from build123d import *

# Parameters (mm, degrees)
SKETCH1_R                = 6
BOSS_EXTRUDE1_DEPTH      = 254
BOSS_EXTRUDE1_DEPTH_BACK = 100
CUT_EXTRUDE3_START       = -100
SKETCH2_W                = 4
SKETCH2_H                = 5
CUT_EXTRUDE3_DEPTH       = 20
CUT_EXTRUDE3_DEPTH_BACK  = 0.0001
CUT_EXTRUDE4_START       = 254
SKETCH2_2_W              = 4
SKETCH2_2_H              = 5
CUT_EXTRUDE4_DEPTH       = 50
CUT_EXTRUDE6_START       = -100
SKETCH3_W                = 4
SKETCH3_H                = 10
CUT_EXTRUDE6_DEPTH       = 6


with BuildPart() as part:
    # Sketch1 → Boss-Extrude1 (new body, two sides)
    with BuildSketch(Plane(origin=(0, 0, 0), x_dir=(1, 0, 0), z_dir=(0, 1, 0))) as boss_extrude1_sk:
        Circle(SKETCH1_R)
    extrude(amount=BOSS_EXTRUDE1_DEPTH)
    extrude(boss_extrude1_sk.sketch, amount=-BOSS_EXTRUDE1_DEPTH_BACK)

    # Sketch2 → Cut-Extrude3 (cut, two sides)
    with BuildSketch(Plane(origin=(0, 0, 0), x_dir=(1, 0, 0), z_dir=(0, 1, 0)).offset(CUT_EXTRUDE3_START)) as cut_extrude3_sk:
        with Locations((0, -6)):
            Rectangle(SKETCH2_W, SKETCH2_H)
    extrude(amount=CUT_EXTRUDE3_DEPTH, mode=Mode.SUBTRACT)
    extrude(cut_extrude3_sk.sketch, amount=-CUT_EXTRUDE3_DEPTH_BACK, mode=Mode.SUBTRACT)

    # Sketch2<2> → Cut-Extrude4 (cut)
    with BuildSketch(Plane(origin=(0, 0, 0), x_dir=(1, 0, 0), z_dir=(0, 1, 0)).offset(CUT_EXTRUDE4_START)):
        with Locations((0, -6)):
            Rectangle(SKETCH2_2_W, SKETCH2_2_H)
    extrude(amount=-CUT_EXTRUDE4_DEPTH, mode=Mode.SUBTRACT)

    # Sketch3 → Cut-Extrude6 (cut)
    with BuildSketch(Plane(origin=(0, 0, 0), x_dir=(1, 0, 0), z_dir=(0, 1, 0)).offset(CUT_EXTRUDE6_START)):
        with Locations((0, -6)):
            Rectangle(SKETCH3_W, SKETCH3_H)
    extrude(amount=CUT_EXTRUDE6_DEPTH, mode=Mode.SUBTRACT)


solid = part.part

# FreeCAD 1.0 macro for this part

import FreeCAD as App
import Part
import Sketcher

V = App.Vector


def add_polygon(sketch, points):
    """Adds a closed chain of lines whose ends are joined by coincident constraints."""
    first, n = sketch.GeometryCount, len(points)
    for a, b in zip(points, points[1:] + points[:1]):
        sketch.addGeometry(Part.LineSegment(App.Vector(*a, 0), App.Vector(*b, 0)), False)
    for i in range(n):
        sketch.addConstraint(Sketcher.Constraint("Coincident", first + i, 2, first + (i + 1) % n, 1))

doc = App.newDocument("Part")
params = doc.addObject("Spreadsheet::Sheet", "Params")
for row, (alias, value) in enumerate([
    ("sketch1_diameter", "12 mm"),
    ("pad1_length", "254 mm"),
    ("pad1_length2", "100 mm"),
    ("sketch2_width", "4 mm"),
    ("sketch2_height", "5 mm"),
    ("pocket1_length", "20 mm"),
    ("pocket1_length2", "0.0001 mm"),
    ("sketch3_width", "4 mm"),
    ("sketch3_height", "5 mm"),
    ("pocket2_length", "50 mm"),
    ("sketch4_width", "4 mm"),
    ("sketch4_height", "10 mm"),
    ("pocket3_length", "6 mm"),
], start=1):
    params.set(f"A{row}", alias)
    params.set(f"B{row}", "=" + value)
    params.setAlias(f"B{row}", alias)

body = doc.addObject("PartDesign::Body", "Body")

# Sketch on XZ plane
sketch1 = body.newObject("Sketcher::SketchObject", "Sketch")
sketch1.AttachmentSupport = (doc.getObject("XZ_Plane"), [""])
sketch1.MapMode = "FlatFace"
sketch1.addGeometry(Part.Circle(V(0, 0, 0), V(0, 0, 1), 6), False)
sketch1.addConstraint([
    Sketcher.Constraint("Coincident", 0, 3, -1, 1),
    Sketcher.Constraint("Diameter", 0, 12.0),
])
sketch1.setExpression("Constraints[1]", "Params.sketch1_diameter")
pad1 = body.newObject("PartDesign::Pad", "Pad")
pad1.Profile = sketch1
pad1.Type = "TwoLengths"
pad1.setExpression("Length", "Params.pad1_length")
pad1.setExpression("Length2", "Params.pad1_length2")
pad1.Reversed = True

# Sketch on XZ plane
sketch2 = body.newObject("Sketcher::SketchObject", "Sketch001")
sketch2.AttachmentSupport = (doc.getObject("XZ_Plane"), [""])
sketch2.MapMode = "FlatFace"
sketch2.AttachmentOffset = App.Placement(V(0, 0, 100), App.Rotation())
add_polygon(sketch2, [(-2, 3.5), (-2, 8.5), (2, 8.5), (2, 3.5)])  # lines 0-3
sketch2.addConstraint([
    Sketcher.Constraint("Vertical", 0),
    Sketcher.Constraint("Horizontal", 1),
    Sketcher.Constraint("Vertical", 2),
    Sketcher.Constraint("Horizontal", 3),
    Sketcher.Constraint("DistanceX", 1, 1, 1, 2, 4.0),
    Sketcher.Constraint("DistanceY", 0, 1, 0, 2, 5.0),
    Sketcher.Constraint("DistanceX", 0, 2, -1, 1, 2.0),
    Sketcher.Constraint("DistanceY", -1, 1, 0, 2, 8.5),
])
sketch2.setExpression("Constraints[8]", "Params.sketch2_width")
sketch2.setExpression("Constraints[9]", "Params.sketch2_height")
pocket1 = body.newObject("PartDesign::Pocket", "Pocket")
pocket1.Profile = sketch2
pocket1.Type = "TwoLengths"
pocket1.setExpression("Length", "Params.pocket1_length")
pocket1.setExpression("Length2", "Params.pocket1_length2")

# Sketch on XZ plane
sketch3 = body.newObject("Sketcher::SketchObject", "Sketch002")
sketch3.AttachmentSupport = (doc.getObject("XZ_Plane"), [""])
sketch3.MapMode = "FlatFace"
sketch3.AttachmentOffset = App.Placement(V(0, 0, -254), App.Rotation())
add_polygon(sketch3, [(-2, 3.5), (-2, 8.5), (2, 8.5), (2, 3.5)])  # lines 0-3
sketch3.addConstraint([
    Sketcher.Constraint("Vertical", 0),
    Sketcher.Constraint("Horizontal", 1),
    Sketcher.Constraint("Vertical", 2),
    Sketcher.Constraint("Horizontal", 3),
    Sketcher.Constraint("DistanceX", 1, 1, 1, 2, 4.0),
    Sketcher.Constraint("DistanceY", 0, 1, 0, 2, 5.0),
    Sketcher.Constraint("DistanceX", 0, 2, -1, 1, 2.0),
    Sketcher.Constraint("DistanceY", -1, 1, 0, 2, 8.5),
])
sketch3.setExpression("Constraints[8]", "Params.sketch3_width")
sketch3.setExpression("Constraints[9]", "Params.sketch3_height")
pocket2 = body.newObject("PartDesign::Pocket", "Pocket001")
pocket2.Profile = sketch3
pocket2.setExpression("Length", "Params.pocket2_length")
pocket2.Reversed = True

# Sketch on XZ plane
sketch4 = body.newObject("Sketcher::SketchObject", "Sketch003")
sketch4.AttachmentSupport = (doc.getObject("XZ_Plane"), [""])
sketch4.MapMode = "FlatFace"
sketch4.AttachmentOffset = App.Placement(V(0, 0, 100), App.Rotation())
add_polygon(sketch4, [(-2, 1), (-2, 11), (2, 11), (2, 1)])  # lines 0-3
sketch4.addConstraint([
    Sketcher.Constraint("Vertical", 0),
    Sketcher.Constraint("Horizontal", 1),
    Sketcher.Constraint("Vertical", 2),
    Sketcher.Constraint("Horizontal", 3),
    Sketcher.Constraint("DistanceX", 1, 1, 1, 2, 4.0),
    Sketcher.Constraint("DistanceY", 0, 1, 0, 2, 10.0),
    Sketcher.Constraint("DistanceX", 0, 2, -1, 1, 2.0),
    Sketcher.Constraint("DistanceY", -1, 1, 0, 2, 11.0),
])
sketch4.setExpression("Constraints[8]", "Params.sketch4_width")
sketch4.setExpression("Constraints[9]", "Params.sketch4_height")
pocket3 = body.newObject("PartDesign::Pocket", "Pocket002")
pocket3.Profile = sketch4
pocket3.setExpression("Length", "Params.pocket3_length")

doc.recompute()
